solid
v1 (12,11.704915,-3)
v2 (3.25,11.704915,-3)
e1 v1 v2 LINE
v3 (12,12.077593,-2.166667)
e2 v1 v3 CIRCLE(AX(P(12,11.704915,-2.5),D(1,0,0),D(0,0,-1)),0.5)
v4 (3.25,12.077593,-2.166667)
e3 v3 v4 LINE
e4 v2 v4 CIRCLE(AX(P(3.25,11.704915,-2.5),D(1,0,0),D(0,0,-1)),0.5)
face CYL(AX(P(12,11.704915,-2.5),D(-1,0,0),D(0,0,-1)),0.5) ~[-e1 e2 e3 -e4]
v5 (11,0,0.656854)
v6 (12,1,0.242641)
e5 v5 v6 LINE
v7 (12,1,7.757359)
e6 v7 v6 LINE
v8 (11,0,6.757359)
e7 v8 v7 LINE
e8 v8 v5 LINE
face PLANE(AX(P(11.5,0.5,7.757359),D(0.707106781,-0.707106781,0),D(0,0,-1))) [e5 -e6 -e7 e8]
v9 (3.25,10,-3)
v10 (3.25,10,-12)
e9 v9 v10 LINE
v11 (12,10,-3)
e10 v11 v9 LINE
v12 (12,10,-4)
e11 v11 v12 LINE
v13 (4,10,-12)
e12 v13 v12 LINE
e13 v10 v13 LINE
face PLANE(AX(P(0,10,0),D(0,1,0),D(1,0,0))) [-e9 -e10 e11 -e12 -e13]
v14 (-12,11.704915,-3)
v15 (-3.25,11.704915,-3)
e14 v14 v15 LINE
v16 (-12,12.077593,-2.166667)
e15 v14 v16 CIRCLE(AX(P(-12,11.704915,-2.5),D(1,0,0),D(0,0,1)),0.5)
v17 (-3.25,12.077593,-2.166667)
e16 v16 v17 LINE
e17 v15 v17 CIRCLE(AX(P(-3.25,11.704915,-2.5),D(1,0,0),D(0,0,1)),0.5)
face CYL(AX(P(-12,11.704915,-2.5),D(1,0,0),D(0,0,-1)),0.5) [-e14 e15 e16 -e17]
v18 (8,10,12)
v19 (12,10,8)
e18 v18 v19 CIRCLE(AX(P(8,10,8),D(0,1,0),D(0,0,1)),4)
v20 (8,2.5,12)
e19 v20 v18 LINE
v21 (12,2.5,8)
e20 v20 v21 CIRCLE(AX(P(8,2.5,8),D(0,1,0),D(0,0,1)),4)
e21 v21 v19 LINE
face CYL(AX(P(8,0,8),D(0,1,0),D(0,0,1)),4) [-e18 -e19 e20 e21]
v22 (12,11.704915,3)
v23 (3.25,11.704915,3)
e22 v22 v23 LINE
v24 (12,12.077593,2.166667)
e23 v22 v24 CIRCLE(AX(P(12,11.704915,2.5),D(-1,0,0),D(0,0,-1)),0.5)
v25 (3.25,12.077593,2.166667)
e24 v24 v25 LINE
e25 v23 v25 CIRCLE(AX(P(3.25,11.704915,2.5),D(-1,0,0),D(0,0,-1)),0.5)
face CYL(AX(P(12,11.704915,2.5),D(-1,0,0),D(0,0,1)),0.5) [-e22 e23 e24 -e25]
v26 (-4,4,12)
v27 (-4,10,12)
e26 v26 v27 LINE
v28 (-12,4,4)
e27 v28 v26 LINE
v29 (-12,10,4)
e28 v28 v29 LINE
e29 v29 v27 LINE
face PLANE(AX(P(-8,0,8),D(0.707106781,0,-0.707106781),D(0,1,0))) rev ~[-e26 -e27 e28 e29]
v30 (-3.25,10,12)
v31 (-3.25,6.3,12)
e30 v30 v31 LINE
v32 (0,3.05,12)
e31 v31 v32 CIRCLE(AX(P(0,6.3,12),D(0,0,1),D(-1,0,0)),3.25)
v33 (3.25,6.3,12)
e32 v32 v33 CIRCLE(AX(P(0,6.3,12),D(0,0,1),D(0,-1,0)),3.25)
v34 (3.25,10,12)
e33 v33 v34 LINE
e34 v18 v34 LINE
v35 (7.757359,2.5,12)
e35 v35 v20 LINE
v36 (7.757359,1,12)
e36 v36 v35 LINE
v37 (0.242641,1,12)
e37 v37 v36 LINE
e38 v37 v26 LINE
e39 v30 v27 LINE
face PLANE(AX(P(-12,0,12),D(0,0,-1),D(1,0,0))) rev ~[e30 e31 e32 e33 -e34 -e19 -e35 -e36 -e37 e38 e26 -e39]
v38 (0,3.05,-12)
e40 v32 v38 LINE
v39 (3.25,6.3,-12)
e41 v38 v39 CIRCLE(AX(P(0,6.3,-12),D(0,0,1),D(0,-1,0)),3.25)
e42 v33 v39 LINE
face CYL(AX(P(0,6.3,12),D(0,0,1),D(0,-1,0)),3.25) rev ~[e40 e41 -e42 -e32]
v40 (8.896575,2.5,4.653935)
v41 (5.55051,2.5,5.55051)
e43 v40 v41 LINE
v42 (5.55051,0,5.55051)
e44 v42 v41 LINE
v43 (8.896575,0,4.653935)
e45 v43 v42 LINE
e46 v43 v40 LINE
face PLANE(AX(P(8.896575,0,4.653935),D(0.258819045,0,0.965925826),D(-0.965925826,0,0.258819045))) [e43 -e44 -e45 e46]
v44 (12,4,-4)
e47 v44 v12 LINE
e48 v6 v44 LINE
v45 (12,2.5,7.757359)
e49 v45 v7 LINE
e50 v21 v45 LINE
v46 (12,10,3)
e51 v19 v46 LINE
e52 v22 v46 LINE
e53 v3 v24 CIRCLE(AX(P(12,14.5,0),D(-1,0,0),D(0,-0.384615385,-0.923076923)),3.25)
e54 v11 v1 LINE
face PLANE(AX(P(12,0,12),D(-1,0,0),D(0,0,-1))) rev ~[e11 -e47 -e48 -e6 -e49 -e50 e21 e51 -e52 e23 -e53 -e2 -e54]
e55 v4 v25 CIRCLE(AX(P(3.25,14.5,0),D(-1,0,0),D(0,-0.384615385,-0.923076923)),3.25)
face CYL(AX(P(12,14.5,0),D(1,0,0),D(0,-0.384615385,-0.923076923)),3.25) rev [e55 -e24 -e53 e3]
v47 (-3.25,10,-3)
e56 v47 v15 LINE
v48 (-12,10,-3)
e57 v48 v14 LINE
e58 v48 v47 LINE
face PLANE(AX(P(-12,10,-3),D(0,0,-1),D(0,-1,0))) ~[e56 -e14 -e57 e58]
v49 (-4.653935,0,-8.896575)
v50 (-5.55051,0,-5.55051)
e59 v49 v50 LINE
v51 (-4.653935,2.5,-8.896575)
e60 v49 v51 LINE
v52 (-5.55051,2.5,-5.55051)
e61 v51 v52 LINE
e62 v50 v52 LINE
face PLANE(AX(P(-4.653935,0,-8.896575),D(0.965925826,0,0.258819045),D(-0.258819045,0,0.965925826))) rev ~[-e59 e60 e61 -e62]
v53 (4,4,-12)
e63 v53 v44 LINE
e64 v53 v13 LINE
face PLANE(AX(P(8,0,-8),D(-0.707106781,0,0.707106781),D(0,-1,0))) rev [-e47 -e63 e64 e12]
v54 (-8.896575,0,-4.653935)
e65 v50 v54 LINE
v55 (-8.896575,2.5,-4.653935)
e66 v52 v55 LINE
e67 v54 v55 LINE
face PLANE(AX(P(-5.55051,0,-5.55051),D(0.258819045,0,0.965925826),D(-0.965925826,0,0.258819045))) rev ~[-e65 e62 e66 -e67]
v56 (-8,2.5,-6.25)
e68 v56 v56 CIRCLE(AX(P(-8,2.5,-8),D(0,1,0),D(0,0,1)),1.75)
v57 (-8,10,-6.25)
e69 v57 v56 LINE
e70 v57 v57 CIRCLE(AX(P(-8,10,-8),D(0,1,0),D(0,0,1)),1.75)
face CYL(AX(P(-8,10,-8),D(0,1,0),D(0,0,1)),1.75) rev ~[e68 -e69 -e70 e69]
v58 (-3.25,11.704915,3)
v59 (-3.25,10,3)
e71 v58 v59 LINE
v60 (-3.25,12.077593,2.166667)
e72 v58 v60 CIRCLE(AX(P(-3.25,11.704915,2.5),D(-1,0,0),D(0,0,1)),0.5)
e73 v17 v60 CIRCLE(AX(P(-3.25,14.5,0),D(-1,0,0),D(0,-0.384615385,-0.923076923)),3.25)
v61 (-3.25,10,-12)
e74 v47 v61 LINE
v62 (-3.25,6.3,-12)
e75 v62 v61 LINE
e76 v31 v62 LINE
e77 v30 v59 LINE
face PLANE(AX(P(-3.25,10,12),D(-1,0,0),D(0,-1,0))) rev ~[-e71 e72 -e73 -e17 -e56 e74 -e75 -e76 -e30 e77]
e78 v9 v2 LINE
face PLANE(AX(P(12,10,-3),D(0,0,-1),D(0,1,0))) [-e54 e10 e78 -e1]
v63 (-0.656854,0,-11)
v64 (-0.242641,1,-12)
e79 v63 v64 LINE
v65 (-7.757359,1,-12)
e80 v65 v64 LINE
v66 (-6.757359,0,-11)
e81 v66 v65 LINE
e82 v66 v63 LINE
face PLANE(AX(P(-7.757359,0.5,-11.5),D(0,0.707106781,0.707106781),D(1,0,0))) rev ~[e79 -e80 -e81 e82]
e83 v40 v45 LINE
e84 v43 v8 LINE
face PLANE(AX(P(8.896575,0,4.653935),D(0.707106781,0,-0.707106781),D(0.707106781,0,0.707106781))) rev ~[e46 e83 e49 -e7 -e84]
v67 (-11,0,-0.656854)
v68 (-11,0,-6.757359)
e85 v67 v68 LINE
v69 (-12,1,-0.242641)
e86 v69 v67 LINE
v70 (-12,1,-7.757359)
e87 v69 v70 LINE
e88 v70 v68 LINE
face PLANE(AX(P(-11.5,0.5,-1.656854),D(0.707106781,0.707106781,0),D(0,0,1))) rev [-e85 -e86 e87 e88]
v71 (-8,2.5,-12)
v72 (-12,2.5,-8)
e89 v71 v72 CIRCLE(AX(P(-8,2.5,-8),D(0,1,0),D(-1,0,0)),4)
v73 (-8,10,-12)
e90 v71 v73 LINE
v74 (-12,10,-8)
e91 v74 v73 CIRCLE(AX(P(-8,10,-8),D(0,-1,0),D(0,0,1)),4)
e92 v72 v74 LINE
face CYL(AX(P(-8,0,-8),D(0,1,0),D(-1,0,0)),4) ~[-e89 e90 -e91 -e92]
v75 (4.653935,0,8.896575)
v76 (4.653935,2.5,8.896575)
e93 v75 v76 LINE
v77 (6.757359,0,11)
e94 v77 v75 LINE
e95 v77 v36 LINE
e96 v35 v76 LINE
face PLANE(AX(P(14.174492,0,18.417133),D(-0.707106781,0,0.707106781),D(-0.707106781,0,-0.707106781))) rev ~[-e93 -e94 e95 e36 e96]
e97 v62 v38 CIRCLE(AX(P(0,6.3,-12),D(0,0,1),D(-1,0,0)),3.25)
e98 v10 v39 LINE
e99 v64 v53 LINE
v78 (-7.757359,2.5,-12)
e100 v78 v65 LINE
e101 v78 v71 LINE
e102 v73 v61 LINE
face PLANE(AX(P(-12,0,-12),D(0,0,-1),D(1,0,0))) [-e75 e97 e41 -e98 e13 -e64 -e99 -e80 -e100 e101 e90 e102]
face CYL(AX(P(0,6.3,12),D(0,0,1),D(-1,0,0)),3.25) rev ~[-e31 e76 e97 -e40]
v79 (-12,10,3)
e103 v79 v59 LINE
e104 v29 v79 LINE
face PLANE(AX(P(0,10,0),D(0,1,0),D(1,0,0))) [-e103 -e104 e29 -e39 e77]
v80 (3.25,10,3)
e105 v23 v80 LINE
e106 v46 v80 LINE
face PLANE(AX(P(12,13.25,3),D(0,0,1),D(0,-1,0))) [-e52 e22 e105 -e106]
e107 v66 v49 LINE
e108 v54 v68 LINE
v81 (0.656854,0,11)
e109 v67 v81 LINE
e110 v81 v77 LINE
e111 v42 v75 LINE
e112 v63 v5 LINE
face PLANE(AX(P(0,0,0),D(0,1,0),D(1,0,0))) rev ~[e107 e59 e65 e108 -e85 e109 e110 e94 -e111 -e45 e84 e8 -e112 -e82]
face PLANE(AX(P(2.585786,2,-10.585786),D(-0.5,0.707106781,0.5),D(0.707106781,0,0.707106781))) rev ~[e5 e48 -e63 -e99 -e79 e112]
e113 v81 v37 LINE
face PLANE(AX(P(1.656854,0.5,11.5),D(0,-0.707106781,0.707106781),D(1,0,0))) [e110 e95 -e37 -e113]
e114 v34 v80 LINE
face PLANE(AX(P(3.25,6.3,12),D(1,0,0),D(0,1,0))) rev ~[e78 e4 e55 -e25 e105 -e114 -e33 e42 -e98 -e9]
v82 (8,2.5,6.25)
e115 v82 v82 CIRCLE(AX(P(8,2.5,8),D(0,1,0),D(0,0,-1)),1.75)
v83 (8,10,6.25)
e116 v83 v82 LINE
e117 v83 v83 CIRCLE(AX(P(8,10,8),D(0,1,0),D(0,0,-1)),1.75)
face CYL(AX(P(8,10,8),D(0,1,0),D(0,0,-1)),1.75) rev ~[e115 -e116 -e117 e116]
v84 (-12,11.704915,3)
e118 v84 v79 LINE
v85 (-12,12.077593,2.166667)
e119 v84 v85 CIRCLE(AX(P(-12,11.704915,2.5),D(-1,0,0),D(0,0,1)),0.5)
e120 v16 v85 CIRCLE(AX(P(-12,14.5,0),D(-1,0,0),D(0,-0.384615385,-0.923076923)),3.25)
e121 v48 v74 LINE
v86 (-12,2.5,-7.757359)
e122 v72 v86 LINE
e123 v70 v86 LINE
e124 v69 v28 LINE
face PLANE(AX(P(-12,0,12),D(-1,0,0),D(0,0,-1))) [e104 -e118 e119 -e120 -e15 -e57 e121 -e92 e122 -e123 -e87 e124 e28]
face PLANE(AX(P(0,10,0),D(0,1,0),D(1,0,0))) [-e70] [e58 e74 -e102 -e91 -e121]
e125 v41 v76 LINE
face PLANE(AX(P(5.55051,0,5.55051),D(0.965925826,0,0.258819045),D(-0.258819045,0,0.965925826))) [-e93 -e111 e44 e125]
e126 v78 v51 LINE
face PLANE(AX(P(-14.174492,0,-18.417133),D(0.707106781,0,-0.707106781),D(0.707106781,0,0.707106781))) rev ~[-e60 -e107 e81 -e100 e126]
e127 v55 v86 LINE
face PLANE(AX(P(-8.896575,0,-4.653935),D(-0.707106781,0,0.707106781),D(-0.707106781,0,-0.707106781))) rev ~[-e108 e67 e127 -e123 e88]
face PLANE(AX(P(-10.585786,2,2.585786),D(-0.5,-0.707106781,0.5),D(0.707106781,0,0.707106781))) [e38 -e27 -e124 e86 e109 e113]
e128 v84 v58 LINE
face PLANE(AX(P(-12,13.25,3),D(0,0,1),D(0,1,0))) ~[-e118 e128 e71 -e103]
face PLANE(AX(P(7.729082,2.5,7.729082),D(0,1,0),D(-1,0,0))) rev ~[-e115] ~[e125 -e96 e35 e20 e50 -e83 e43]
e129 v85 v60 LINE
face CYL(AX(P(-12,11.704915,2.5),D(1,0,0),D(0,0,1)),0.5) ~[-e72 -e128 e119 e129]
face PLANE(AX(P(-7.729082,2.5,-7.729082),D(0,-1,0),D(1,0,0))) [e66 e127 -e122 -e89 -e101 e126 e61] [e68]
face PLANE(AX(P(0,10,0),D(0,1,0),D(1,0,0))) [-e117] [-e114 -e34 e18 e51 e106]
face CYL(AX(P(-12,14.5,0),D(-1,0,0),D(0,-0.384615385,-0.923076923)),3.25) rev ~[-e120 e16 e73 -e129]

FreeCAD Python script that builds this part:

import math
import FreeCAD as App
import Part
import Sketcher

V = App.Vector
Q = App.Units.Quantity


def edges_at(feature, points):
    """Names of the edges that pass closest to the given points."""
    edges = feature.Shape.Edges
    near = lambda p: min(range(len(edges)), key=lambda i: edges[i].distToShape(Part.Vertex(*p))[0])
    return sorted({f"Edge{near(p) + 1}" for p in points})

doc = App.newDocument("Part")
params = doc.addObject("Spreadsheet::Sheet", "Params")
for row, (alias, value) in enumerate([
    ("sketch1_width", "24 mm"),
    ("pad1_length", "10 mm"),
    ("sketch2_radius", "3.25 mm"),
    ("sketch2_height", "3.7 mm"),
    ("sketch3_height", "6 mm"),
    ("sketch3_radius", "3.25 mm"),
    ("sketch3_width", "3.25 mm"),
    ("pad2_length", "8.75 mm"),
    ("sketch4_diameter", "3.5 mm"),
    ("chamfer_size", "8 mm"),
    ("fillet_radius", "4 mm"),
    ("fillet2_radius", "0.5 mm"),
    ("chamfer2_size", "4 mm"),
    ("sketch5_length", "6 mm"),
    ("pocket3_length", "2.5 mm"),
    ("chamfer3_size", "1 mm"),
], start=1):
    params.set(f"A{row}", alias)
    params.set(f"B{row}", "=" + value)
    params.setAlias(f"B{row}", alias)

body = doc.addObject("PartDesign::Body", "Body")

sketch1 = doc.addObject("Sketcher::SketchObject", "Sketch")
body.addObject(sketch1)
sketch1.AttachmentSupport = (doc.XZ_Plane, [""])
sketch1.MapMode = "FlatFace"
sketch1.addGeometry([
    Part.LineSegment(V(-12, -12, 0), V(-12, 12, 0)),
    Part.LineSegment(V(-12, 12, 0), V(12, 12, 0)),
    Part.LineSegment(V(12, 12, 0), V(12, -12, 0)),
    Part.LineSegment(V(12, -12, 0), V(-12, -12, 0)),
], False)
sketch1.addConstraint([
    Sketcher.Constraint("Coincident", 0, 2, 1, 1),
    Sketcher.Constraint("Coincident", 1, 2, 2, 1),
    Sketcher.Constraint("Coincident", 2, 2, 3, 1),
    Sketcher.Constraint("Coincident", 3, 2, 0, 1),
    Sketcher.Constraint("Vertical", 0),
    Sketcher.Constraint("Horizontal", 1),
    Sketcher.Constraint("Vertical", 2),
    Sketcher.Constraint("Horizontal", 3),
    Sketcher.Constraint("Symmetric", 0, 2, 2, 2, -1, 1),
    Sketcher.Constraint("Equal", 3, 0),
    Sketcher.Constraint("DistanceX", 1, 1, 1, 2, 24.0),
])
sketch1.setExpression("Constraints[10]", "Params.sketch1_width")
pad1 = doc.addObject("PartDesign::Pad", "Pad")
body.addObject(pad1)
pad1.Profile = sketch1
pad1.setExpression("Length", "Params.pad1_length")
pad1.Reversed = True

sketch2 = doc.addObject("Sketcher::SketchObject", "Sketch001")
body.addObject(sketch2)
sketch2.AttachmentSupport = (doc.XY_Plane, [""])
sketch2.MapMode = "FlatFace"
sketch2.AttachmentOffset = App.Placement(V(0, 0, 12), App.Rotation())
sketch2.addGeometry([
    Part.ArcOfCircle(Part.Circle(V(0, 6.3, 0), V(0, 0, 1), 3.2), math.radians(-90), math.radians(0)),
    Part.LineSegment(V(3.2, 6.3, 0), V(3.2, 10, 0)),
    Part.LineSegment(V(3.2, 10, 0), V(-3.2, 10, 0)),
    Part.LineSegment(V(-3.2, 10, 0), V(-3.2, 6.3, 0)),
    Part.ArcOfCircle(Part.Circle(V(0, 6.3, 0), V(0, 0, 1), 3.2), math.radians(180), math.radians(270)),
], False)
sketch2.addConstraint([
    Sketcher.Constraint("Tangent", 0, 2, 1, 1),
    Sketcher.Constraint("Coincident", 1, 2, 2, 1),
    Sketcher.Constraint("Coincident", 2, 2, 3, 1),
    Sketcher.Constraint("Tangent", 3, 2, 4, 1),
    Sketcher.Constraint("Tangent", 4, 2, 0, 1),
    Sketcher.Constraint("Vertical", 1),
    Sketcher.Constraint("Horizontal", 2),
    Sketcher.Constraint("Vertical", 3),
    Sketcher.Constraint("Equal", 0, 4),
    Sketcher.Constraint("PointOnObject", 0, 3, -2),
    Sketcher.Constraint("PointOnObject", 4, 2, -2),
    Sketcher.Constraint("Radius", 0, 3.25),
    Sketcher.Constraint("DistanceY", 1, 1, 1, 2, 3.7),
    Sketcher.Constraint("DistanceY", -1, 1, 1, 2, 10.0),
])
sketch2.setExpression("Constraints[11]", "Params.sketch2_radius")
sketch2.setExpression("Constraints[12]", "Params.sketch2_height")
pocket1 = doc.addObject("PartDesign::Pocket", "Pocket")
body.addObject(pocket1)
pocket1.Profile = sketch2
pocket1.Type = "ThroughAll"
pocket1.Midplane = True

sketch3 = doc.addObject("Sketcher::SketchObject", "Sketch002")
body.addObject(sketch3)
sketch3.AttachmentSupport = (doc.YZ_Plane, [""])
sketch3.MapMode = "FlatFace"
sketch3.AttachmentOffset = App.Placement(V(0, 0, 12), App.Rotation())
sketch3.addGeometry([
    Part.LineSegment(V(10, 3, 0), V(10, -3, 0)),
    Part.LineSegment(V(10, -3, 0), V(13.2, -3, 0)),
    Part.ArcOfCircle(Part.Circle(V(14.5, 0, 0), V(0, 0, 1), 3.2), math.radians(113), math.radians(247)),
    Part.LineSegment(V(13.2, 3, 0), V(10, 3, 0)),
], False)
sketch3.addConstraint([
    Sketcher.Constraint("Coincident", 0, 2, 1, 1),
    Sketcher.Constraint("Coincident", 1, 2, 2, 2),
    Sketcher.Constraint("Coincident", 2, 1, 3, 1),
    Sketcher.Constraint("Coincident", 3, 2, 0, 1),
    Sketcher.Constraint("Vertical", 0),
    Sketcher.Constraint("Horizontal", 1),
    Sketcher.Constraint("Horizontal", 3),
    Sketcher.Constraint("Symmetric", 1, 2, 2, 1, -1),
    Sketcher.Constraint("DistanceY", 0, 2, 0, 1, 6.0),
    Sketcher.Constraint("Radius", 2, 3.25),
    Sketcher.Constraint("DistanceX", -1, 1, 0, 2, 10.0),
    Sketcher.Constraint("DistanceX", 1, 1, 1, 2, 3.25),
])
sketch3.setExpression("Constraints[8]", "Params.sketch3_height")
sketch3.setExpression("Constraints[9]", "Params.sketch3_radius")
sketch3.setExpression("Constraints[11]", "Params.sketch3_width")
pad2 = doc.addObject("PartDesign::Pad", "Pad001")
body.addObject(pad2)
pad2.Profile = sketch3
pad2.setExpression("Length", "Params.pad2_length")
pad2.Reversed = True
doc.recompute()

mirrored = doc.addObject("PartDesign::Mirrored", "Mirrored")
body.addObject(mirrored)
mirrored.Originals = [pad2]
mirrored.MirrorPlane = (doc.YZ_Plane, [""])
body.Tip = mirrored

sketch4 = doc.addObject("Sketcher::SketchObject", "Sketch003")
body.addObject(sketch4)
sketch4.AttachmentSupport = (doc.XZ_Plane, [""])
sketch4.MapMode = "FlatFace"
sketch4.AttachmentOffset = App.Placement(V(0, 0, -10), App.Rotation())
sketch4.addGeometry([
    Part.Circle(V(-8, -8, 0), V(0, 0, 1), 1.8),
    Part.Circle(V(8, 8, 0), V(0, 0, 1), 1.8),
], False)
sketch4.addConstraint([
    Sketcher.Constraint("Equal", 0, 1),
    Sketcher.Constraint("Symmetric", 0, 3, 1, 3, -1, 1),
    Sketcher.Constraint("Diameter", 0, 3.5),
    Sketcher.Constraint("DistanceX", 0, 3, -1, 1, 8.0),
    Sketcher.Constraint("DistanceY", 0, 3, -1, 1, 8.0),
])
sketch4.setExpression("Constraints[2]", "Params.sketch4_diameter")
pocket2 = doc.addObject("PartDesign::Pocket", "Pocket001")
body.addObject(pocket2)
pocket2.Profile = sketch4
pocket2.Type = "ThroughAll"
pocket2.Reversed = True
doc.recompute()

chamfer = doc.addObject("PartDesign::Chamfer", "Chamfer")
body.addObject(chamfer)
chamfer.Base = (pocket2, edges_at(pocket2, [(-12, 5, 12), (12, 5, -12)]))
chamfer.setExpression("Size", "Params.chamfer_size")
doc.recompute()

fillet = doc.addObject("PartDesign::Fillet", "Fillet")
body.addObject(fillet)
fillet.Base = (chamfer, edges_at(chamfer, [(12, 5, 12), (-12, 5, -12)]))
fillet.setExpression("Radius", "Params.fillet_radius")
doc.recompute()

fillet2 = doc.addObject("PartDesign::Fillet", "Fillet001")
body.addObject(fillet2)
fillet2.Base = (fillet, edges_at(fillet, [
    (7.625, 13.25, 3),
    (7.625, 13.25, -3),
    (-7.625, 13.25, -3),
    (-7.625, 13.25, 3),
]))
fillet2.setExpression("Radius", "Params.fillet2_radius")
doc.recompute()

chamfer2 = doc.addObject("PartDesign::Chamfer", "Chamfer001")
body.addObject(chamfer2)
chamfer2.Base = (fillet2, edges_at(fillet2, [(-8, 0, 8), (8, 0, -8)]))
chamfer2.setExpression("Size", "Params.chamfer2_size")

sketch5 = doc.addObject("Sketcher::SketchObject", "Sketch004")
body.addObject(sketch5)
sketch5.AttachmentSupport = (doc.XZ_Plane, [""])
sketch5.MapMode = "FlatFace"
sketch5.addGeometry([
    Part.LineSegment(V(-4.7, -8.9, 0), V(-5.6, -5.6, 0)),
    Part.LineSegment(V(-5.6, -5.6, 0), V(-8.9, -4.7, 0)),
    Part.LineSegment(V(-8.9, -4.7, 0), V(-18.4, -14.2, 0)),
    Part.LineSegment(V(-18.4, -14.2, 0), V(-14.2, -18.4, 0)),
    Part.LineSegment(V(-14.2, -18.4, 0), V(-4.7, -8.9, 0)),
    Part.LineSegment(V(8.9, 4.7, 0), V(18.4, 14.2, 0)),
    Part.LineSegment(V(18.4, 14.2, 0), V(14.2, 18.4, 0)),
    Part.LineSegment(V(14.2, 18.4, 0), V(4.7, 8.9, 0)),
    Part.LineSegment(V(4.7, 8.9, 0), V(5.6, 5.6, 0)),
    Part.LineSegment(V(5.6, 5.6, 0), V(8.9, 4.7, 0)),
], False)
sketch5.addConstraint([
    Sketcher.Constraint("Coincident", 0, 2, 1, 1),
    Sketcher.Constraint("Coincident", 1, 2, 2, 1),
    Sketcher.Constraint("Coincident", 2, 2, 3, 1),
    Sketcher.Constraint("Coincident", 3, 2, 4, 1),
    Sketcher.Constraint("Coincident", 4, 2, 0, 1),
    Sketcher.Constraint("Coincident", 5, 2, 6, 1),
    Sketcher.Constraint("Coincident", 6, 2, 7, 1),
    Sketcher.Constraint("Coincident", 7, 2, 8, 1),
    Sketcher.Constraint("Coincident", 8, 2, 9, 1),
    Sketcher.Constraint("Coincident", 9, 2, 5, 1),
    Sketcher.Constraint("Symmetric", 2, 2, 5, 2, -1, 1),
    Sketcher.Constraint("Symmetric", 3, 2, 6, 2, -1, 1),
    Sketcher.Constraint("Symmetric", 4, 2, 7, 2, -1, 1),
    Sketcher.Constraint("Symmetric", 0, 2, 8, 2, -1, 1),
    Sketcher.Constraint("Symmetric", 1, 2, 9, 2, -1, 1),
    Sketcher.Constraint("Perpendicular", 2, 3),
    Sketcher.Constraint("Perpendicular", 3, 4),
    Sketcher.Constraint("Equal", 0, 1),
    Sketcher.Constraint("Equal", 2, 4),
    Sketcher.Constraint("Angle", 0, Q("105 deg")),
    Sketcher.Constraint("Angle", 1, Q("165 deg")),
    Sketcher.Constraint("Distance", 3, 6.0),
    Sketcher.Constraint("Distance", 2, 13.464102),
    Sketcher.Constraint("DistanceX", 0, 2, -1, 1, 5.55051),
    Sketcher.Constraint("DistanceY", 0, 2, -1, 1, 5.55051),
])
sketch5.setExpression("Constraints[21]", "Params.sketch5_length")
pocket3 = doc.addObject("PartDesign::Pocket", "Pocket002")
body.addObject(pocket3)
pocket3.Profile = sketch5
pocket3.setExpression("Length", "Params.pocket3_length")
doc.recompute()

chamfer3 = doc.addObject("PartDesign::Chamfer", "Chamfer002")
body.addObject(chamfer3)
chamfer3.Base = (pocket3, edges_at(pocket3, [
    (4.707, 0, 12),
    (-4.707, 0, -12),
    (12, 0, 4.707),
    (-12, 0, -4.707),
]))
chamfer3.setExpression("Size", "Params.chamfer3_size")

doc.recompute()
